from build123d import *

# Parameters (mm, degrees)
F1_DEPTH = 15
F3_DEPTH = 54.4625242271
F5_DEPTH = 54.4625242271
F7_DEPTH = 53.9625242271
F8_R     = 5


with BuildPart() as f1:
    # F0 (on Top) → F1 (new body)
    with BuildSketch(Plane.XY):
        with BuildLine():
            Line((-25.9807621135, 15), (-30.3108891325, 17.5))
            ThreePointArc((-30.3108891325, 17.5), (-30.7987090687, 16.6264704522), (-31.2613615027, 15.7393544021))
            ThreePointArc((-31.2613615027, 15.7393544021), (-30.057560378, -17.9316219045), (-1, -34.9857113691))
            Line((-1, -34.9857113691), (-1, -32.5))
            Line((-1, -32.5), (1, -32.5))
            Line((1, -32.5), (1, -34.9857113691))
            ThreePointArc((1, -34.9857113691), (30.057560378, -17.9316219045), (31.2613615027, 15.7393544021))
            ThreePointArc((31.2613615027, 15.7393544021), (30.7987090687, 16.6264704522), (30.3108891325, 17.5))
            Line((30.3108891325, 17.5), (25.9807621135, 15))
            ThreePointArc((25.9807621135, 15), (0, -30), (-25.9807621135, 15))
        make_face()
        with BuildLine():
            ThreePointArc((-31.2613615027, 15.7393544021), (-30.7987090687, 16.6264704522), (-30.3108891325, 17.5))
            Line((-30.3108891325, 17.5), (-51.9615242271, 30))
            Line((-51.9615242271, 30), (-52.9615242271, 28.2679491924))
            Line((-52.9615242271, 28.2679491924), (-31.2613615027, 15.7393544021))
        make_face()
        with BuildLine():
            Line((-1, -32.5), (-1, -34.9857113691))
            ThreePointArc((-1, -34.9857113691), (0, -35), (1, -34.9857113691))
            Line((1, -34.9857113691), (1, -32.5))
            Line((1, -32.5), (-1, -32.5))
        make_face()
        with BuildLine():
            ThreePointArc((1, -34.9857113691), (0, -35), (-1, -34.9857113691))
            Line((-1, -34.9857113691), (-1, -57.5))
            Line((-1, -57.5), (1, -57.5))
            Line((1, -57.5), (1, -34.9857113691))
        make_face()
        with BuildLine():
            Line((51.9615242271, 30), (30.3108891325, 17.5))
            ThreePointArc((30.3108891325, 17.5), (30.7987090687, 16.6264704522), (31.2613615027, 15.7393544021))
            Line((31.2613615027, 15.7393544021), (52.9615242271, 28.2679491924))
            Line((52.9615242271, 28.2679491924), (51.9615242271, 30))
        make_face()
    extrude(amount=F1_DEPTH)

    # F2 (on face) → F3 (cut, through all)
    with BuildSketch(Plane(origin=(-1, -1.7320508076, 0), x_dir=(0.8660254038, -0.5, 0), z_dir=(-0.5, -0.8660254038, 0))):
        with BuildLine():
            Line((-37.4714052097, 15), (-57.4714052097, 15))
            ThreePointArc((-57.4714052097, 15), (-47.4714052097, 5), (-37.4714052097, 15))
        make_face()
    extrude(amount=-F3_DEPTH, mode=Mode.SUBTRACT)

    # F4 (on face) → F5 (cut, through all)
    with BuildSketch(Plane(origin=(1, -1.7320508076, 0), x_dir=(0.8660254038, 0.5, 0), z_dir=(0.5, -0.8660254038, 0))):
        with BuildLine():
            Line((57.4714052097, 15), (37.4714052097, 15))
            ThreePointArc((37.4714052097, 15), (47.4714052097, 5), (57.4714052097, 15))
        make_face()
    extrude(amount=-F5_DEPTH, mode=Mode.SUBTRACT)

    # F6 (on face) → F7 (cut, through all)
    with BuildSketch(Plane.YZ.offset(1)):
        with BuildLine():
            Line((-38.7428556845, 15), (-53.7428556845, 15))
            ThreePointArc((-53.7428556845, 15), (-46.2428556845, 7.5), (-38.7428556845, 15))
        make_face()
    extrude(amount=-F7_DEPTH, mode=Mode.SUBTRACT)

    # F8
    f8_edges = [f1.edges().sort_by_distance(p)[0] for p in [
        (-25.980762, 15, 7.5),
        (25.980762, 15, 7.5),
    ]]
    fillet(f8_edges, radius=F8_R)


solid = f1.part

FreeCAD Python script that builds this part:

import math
import FreeCAD as App
import Part
import Sketcher
Q = App.Units.Quantity


def edges_at(feature, points):
    """Names of the edges that pass closest to the given points."""
    edges = feature.Shape.Edges
    near = lambda p: min(range(len(edges)), key=lambda i: edges[i].distToShape(Part.Vertex(*p))[0])
    return sorted({f"Edge{near(p) + 1}" for p in points})

doc = App.newDocument("Part")
body = doc.addObject("PartDesign::Body", "Body")

sketch1 = doc.addObject("Sketcher::SketchObject", "Sketch")
body.addObject(sketch1)
sketch1.AttachmentSupport = (doc.XY_Plane, [""])
sketch1.MapMode = "FlatFace"
sketch1.addGeometry([
    Part.LineSegment(App.Vector(-25.980762, 15, 0), App.Vector(-30.310889, 17.5, 0)),
    Part.LineSegment(App.Vector(-30.310889, 17.5, 0), App.Vector(-51.961524, 30, 0)),
    Part.LineSegment(App.Vector(-51.961524, 30, 0), App.Vector(-52.961524, 28.267949, 0)),
    Part.LineSegment(App.Vector(-52.961524, 28.267949, 0), App.Vector(-31.261362, 15.739354, 0)),
    Part.ArcOfCircle(Part.Circle(App.Vector(0, 0, 0), App.Vector(0, 0, 1), 35), math.radians(153.275829), math.radians(268.362755)),
    Part.LineSegment(App.Vector(-1, -34.985711, 0), App.Vector(-1, -57.5, 0)),
    Part.LineSegment(App.Vector(-1, -57.5, 0), App.Vector(1, -57.5, 0)),
    Part.LineSegment(App.Vector(1, -57.5, 0), App.Vector(1, -34.985711, 0)),
    Part.ArcOfCircle(Part.Circle(App.Vector(0, 0, 0), App.Vector(0, 0, 1), 35), math.radians(-88.362755), math.radians(26.724171)),
    Part.LineSegment(App.Vector(31.261362, 15.739354, 0), App.Vector(52.961524, 28.267949, 0)),
    Part.LineSegment(App.Vector(52.961524, 28.267949, 0), App.Vector(51.961524, 30, 0)),
    Part.LineSegment(App.Vector(51.961524, 30, 0), App.Vector(30.310889, 17.5, 0)),
    Part.LineSegment(App.Vector(30.310889, 17.5, 0), App.Vector(25.980762, 15, 0)),
    Part.ArcOfCircle(Part.Circle(App.Vector(0, 0, 0), App.Vector(0, 0, 1), 30), math.radians(150), math.radians(390)),
], False)
sketch1.addConstraint([
    Sketcher.Constraint("Coincident", 0, 2, 1, 1),
    Sketcher.Constraint("Coincident", 1, 2, 2, 1),
    Sketcher.Constraint("Coincident", 2, 2, 3, 1),
    Sketcher.Constraint("Coincident", 3, 2, 4, 1),
    Sketcher.Constraint("Coincident", 4, 2, 5, 1),
    Sketcher.Constraint("Coincident", 5, 2, 6, 1),
    Sketcher.Constraint("Coincident", 6, 2, 7, 1),
    Sketcher.Constraint("Coincident", 7, 2, 8, 1),
    Sketcher.Constraint("Coincident", 8, 2, 9, 1),
    Sketcher.Constraint("Coincident", 9, 2, 10, 1),
    Sketcher.Constraint("Coincident", 10, 2, 11, 1),
    Sketcher.Constraint("Coincident", 11, 2, 12, 1),
    Sketcher.Constraint("Coincident", 12, 2, 13, 2),
    Sketcher.Constraint("Coincident", 13, 1, 0, 1),
    Sketcher.Constraint("Vertical", 5),
    Sketcher.Constraint("Horizontal", 6),
    Sketcher.Constraint("Vertical", 7),
    Sketcher.Constraint("Coincident", 4, 3, -1, 1),
    Sketcher.Constraint("Coincident", 8, 3, -1, 1),
    Sketcher.Constraint("Coincident", 13, 3, -1, 1),
    Sketcher.Constraint("Equal", 4, 8),
    Sketcher.Constraint("Symmetric", 2, 2, 9, 2, -2),
    Sketcher.Constraint("Symmetric", 1, 2, 10, 2, -2),
    Sketcher.Constraint("Symmetric", 0, 2, 11, 2, -2),
    Sketcher.Constraint("Parallel", 0, 1),
    Sketcher.Constraint("Perpendicular", 1, 2),
    Sketcher.Constraint("Perpendicular", 2, 3),
    Sketcher.Constraint("Perpendicular", 9, 10),
    Sketcher.Constraint("Parallel", 11, 12),
    Sketcher.Constraint("Horizontal", 4, 2, 7, 2),
    Sketcher.Constraint("Radius", 4, 35.0),
    Sketcher.Constraint("Radius", 13, 30.0),
    Sketcher.Constraint("DistanceX", 6, 1, 6, 2, 2.0),
    Sketcher.Constraint("Angle", 0, Q("150 deg")),
    Sketcher.Constraint("Distance", 0, 5.0),
    Sketcher.Constraint("Distance", 1, 25.0),
    Sketcher.Constraint("Distance", 2, 2.0),
    Sketcher.Constraint("DistanceY", -1, 1, 1, 2, 30.0),
    Sketcher.Constraint("DistanceY", 5, 2, -1, 1, 57.5),
])
pad1 = doc.addObject("PartDesign::Pad", "Pad")
body.addObject(pad1)
pad1.Profile = sketch1
pad1.Length = 15

sketch2 = doc.addObject("Sketcher::SketchObject", "Sketch001")
body.addObject(sketch2)
sketch2.Placement = App.Placement(App.Vector(-1, -1.732051, 0), App.Rotation(App.Vector(0.866025404, -0.5, 0), App.Vector(0, 0, 1), App.Vector(-0.5, -0.866025404, 0), "ZXY"))
sketch2.addGeometry([
    Part.LineSegment(App.Vector(-37.471405, 15, 0), App.Vector(-57.471405, 15, 0)),
    Part.ArcOfCircle(Part.Circle(App.Vector(-47.471405, 15, 0), App.Vector(0, 0, 1), 10), math.radians(180), math.radians(360)),
], False)
sketch2.addConstraint([
    Sketcher.Constraint("Coincident", 0, 1, 1, 2),
    Sketcher.Constraint("Coincident", 1, 1, 0, 2),
    Sketcher.Constraint("Horizontal", 0),
    Sketcher.Constraint("Horizontal", 1, 3, 0, 1),
    Sketcher.Constraint("Radius", 1, 10.0),
    Sketcher.Constraint("DistanceY", -1, 1, 1, 3, 15.0),
    Sketcher.Constraint("DistanceX", 1, 3, -1, 1, 47.471405),
])
pocket1 = doc.addObject("PartDesign::Pocket", "Pocket")
body.addObject(pocket1)
pocket1.Profile = sketch2
pocket1.Type = "ThroughAll"

sketch3 = doc.addObject("Sketcher::SketchObject", "Sketch002")
body.addObject(sketch3)
sketch3.Placement = App.Placement(App.Vector(1, -1.732051, 0), App.Rotation(App.Vector(0.866025404, 0.5, 0), App.Vector(0, 0, 1), App.Vector(0.5, -0.866025404, 0), "ZXY"))
sketch3.addGeometry([
    Part.LineSegment(App.Vector(57.471405, 15, 0), App.Vector(37.471405, 15, 0)),
    Part.ArcOfCircle(Part.Circle(App.Vector(47.471405, 15, 0), App.Vector(0, 0, 1), 10), math.radians(180), math.radians(360)),
], False)
sketch3.addConstraint([
    Sketcher.Constraint("Coincident", 0, 1, 1, 2),
    Sketcher.Constraint("Coincident", 1, 1, 0, 2),
    Sketcher.Constraint("Horizontal", 0),
    Sketcher.Constraint("Horizontal", 1, 3, 0, 1),
    Sketcher.Constraint("Radius", 1, 10.0),
    Sketcher.Constraint("DistanceY", -1, 1, 1, 3, 15.0),
    Sketcher.Constraint("DistanceX", -1, 1, 1, 3, 47.471405),
])
pocket2 = doc.addObject("PartDesign::Pocket", "Pocket001")
body.addObject(pocket2)
pocket2.Profile = sketch3
pocket2.Type = "ThroughAll"

sketch4 = doc.addObject("Sketcher::SketchObject", "Sketch003")
body.addObject(sketch4)
sketch4.AttachmentSupport = (doc.YZ_Plane, [""])
sketch4.MapMode = "FlatFace"
sketch4.AttachmentOffset = App.Placement(App.Vector(0, 0, 1), App.Rotation())
sketch4.addGeometry([
    Part.LineSegment(App.Vector(-38.742856, 15, 0), App.Vector(-53.742856, 15, 0)),
    Part.ArcOfCircle(Part.Circle(App.Vector(-46.242856, 15, 0), App.Vector(0, 0, 1), 7.5), math.radians(180), math.radians(360)),
], False)
sketch4.addConstraint([
    Sketcher.Constraint("Coincident", 0, 1, 1, 2),
    Sketcher.Constraint("Coincident", 1, 1, 0, 2),
    Sketcher.Constraint("Horizontal", 0),
    Sketcher.Constraint("Horizontal", 1, 3, 0, 1),
    Sketcher.Constraint("Radius", 1, 7.5),
    Sketcher.Constraint("DistanceY", -1, 1, 1, 3, 15.0),
    Sketcher.Constraint("DistanceX", 1, 3, -1, 1, 46.242856),
])
pocket3 = doc.addObject("PartDesign::Pocket", "Pocket002")
body.addObject(pocket3)
pocket3.Profile = sketch4
pocket3.Type = "ThroughAll"
doc.recompute()

fillet = doc.addObject("PartDesign::Fillet", "Fillet")
body.addObject(fillet)
fillet.Base = (pocket3, edges_at(pocket3, [(-25.981, 15, 7.5), (25.981, 15, 7.5)]))
fillet.Radius = 5

doc.recompute()
